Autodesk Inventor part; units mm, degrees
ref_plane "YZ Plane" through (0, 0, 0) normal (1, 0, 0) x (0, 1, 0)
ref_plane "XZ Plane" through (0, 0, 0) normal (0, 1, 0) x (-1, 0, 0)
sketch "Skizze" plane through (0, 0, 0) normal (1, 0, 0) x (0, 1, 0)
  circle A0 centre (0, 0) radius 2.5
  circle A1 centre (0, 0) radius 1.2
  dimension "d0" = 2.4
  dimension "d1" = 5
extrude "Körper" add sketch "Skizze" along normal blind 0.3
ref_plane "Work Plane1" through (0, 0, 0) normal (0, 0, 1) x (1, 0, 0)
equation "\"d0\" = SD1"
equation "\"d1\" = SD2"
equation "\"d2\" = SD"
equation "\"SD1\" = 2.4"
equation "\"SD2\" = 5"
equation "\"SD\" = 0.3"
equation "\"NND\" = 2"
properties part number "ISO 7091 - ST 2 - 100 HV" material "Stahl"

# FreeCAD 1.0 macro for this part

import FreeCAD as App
import Part
import Sketcher

V = App.Vector

doc = App.newDocument("Part")
body = doc.addObject("PartDesign::Body", "Body")

sketch1 = doc.addObject("Sketcher::SketchObject", "Sketch")
body.addObject(sketch1)
sketch1.AttachmentSupport = (doc.YZ_Plane, [""])
sketch1.MapMode = "FlatFace"
sketch1.addGeometry([
    Part.Circle(V(0, 0, 0), V(0, 0, 1), 2.5),
    Part.Circle(V(0, 0, 0), V(0, 0, 1), 1.2),
], False)
sketch1.addConstraint([
    Sketcher.Constraint("Coincident", 0, 3, -1, 1),
    Sketcher.Constraint("Coincident", 1, 3, -1, 1),
    Sketcher.Constraint("Diameter", 0, 5.0),
    Sketcher.Constraint("Diameter", 1, 2.4),
])
pad1 = doc.addObject("PartDesign::Pad", "Pad")
body.addObject(pad1)
pad1.Profile = sketch1
pad1.Length = 0.3

doc.recompute()
